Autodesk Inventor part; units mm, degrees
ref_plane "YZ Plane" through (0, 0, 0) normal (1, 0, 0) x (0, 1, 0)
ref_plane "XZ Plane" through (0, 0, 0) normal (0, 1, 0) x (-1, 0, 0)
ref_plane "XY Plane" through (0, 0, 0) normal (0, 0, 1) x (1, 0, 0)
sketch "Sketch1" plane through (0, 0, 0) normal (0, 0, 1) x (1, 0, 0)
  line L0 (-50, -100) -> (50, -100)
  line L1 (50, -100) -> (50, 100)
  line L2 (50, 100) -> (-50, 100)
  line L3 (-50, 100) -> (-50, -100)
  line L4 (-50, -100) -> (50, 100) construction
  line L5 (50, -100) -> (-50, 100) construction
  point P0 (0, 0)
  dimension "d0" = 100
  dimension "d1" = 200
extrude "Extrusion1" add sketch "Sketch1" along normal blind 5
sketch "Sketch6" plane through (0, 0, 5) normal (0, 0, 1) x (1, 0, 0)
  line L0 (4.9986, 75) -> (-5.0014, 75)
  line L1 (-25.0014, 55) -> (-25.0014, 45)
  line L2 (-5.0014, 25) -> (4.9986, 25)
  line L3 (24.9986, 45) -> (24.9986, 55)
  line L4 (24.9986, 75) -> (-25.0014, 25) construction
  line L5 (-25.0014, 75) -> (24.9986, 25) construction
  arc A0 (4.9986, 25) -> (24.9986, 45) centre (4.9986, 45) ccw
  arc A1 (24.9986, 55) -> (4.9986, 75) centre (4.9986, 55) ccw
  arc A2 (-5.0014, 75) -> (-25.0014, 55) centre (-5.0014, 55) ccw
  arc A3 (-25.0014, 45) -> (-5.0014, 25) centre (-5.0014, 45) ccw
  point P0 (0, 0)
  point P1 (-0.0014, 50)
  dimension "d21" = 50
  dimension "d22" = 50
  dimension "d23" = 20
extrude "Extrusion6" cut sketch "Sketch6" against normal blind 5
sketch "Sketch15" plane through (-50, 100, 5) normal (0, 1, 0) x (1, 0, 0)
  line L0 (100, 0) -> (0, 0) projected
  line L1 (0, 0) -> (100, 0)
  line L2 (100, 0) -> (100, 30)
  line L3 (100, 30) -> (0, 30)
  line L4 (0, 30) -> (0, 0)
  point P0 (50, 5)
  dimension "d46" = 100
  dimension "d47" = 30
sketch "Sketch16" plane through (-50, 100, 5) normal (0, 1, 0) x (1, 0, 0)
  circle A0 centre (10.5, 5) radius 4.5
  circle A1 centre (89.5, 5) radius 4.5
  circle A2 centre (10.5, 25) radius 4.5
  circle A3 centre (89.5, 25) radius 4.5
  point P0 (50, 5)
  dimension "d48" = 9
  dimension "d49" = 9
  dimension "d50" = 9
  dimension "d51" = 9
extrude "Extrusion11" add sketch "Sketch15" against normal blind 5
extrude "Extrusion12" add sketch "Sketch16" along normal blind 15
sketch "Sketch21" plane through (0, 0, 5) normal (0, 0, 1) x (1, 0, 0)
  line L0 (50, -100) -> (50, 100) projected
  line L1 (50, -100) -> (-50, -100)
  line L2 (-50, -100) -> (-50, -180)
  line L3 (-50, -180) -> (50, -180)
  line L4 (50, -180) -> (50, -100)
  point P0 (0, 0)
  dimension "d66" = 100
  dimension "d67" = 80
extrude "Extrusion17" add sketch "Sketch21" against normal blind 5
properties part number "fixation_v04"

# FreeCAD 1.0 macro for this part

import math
import FreeCAD as App
import Part
import Sketcher
Q = App.Units.Quantity

doc = App.newDocument("Part")
body = doc.addObject("PartDesign::Body", "Body")

sketch1 = body.newObject("Sketcher::SketchObject", "Sketch")
sketch1.AttachmentSupport = (doc.getObject("XY_Plane"), [""])
sketch1.MapMode = "FlatFace"
sketch1.addGeometry([
    Part.LineSegment(App.Vector(-50, 100, 0), App.Vector(-50, -100, 0)),
    Part.LineSegment(App.Vector(-50, -100, 0), App.Vector(50, -100, 0)),
    Part.LineSegment(App.Vector(50, -100, 0), App.Vector(50, 100, 0)),
    Part.LineSegment(App.Vector(50, 100, 0), App.Vector(-50, 100, 0)),
], False)
sketch1.addConstraint([
    Sketcher.Constraint("Coincident", 0, 2, 1, 1),
    Sketcher.Constraint("Coincident", 1, 2, 2, 1),
    Sketcher.Constraint("Coincident", 2, 2, 3, 1),
    Sketcher.Constraint("Coincident", 3, 2, 0, 1),
    Sketcher.Constraint("Vertical", 0),
    Sketcher.Constraint("Horizontal", 1),
    Sketcher.Constraint("Vertical", 2),
    Sketcher.Constraint("Horizontal", 3),
    Sketcher.Constraint("Symmetric", 0, 2, 2, 2, -1, 1),
    Sketcher.Constraint("DistanceX", 1, 1, 1, 2, Q("100 mm")),
    Sketcher.Constraint("DistanceY", 0, 2, 0, 1, Q("200 mm")),
])
pad1 = body.newObject("PartDesign::Pad", "Pad")
pad1.Profile = sketch1
pad1.Length = 5

sketch2 = body.newObject("Sketcher::SketchObject", "Sketch001")
sketch2.AttachmentSupport = (doc.getObject("XY_Plane"), [""])
sketch2.MapMode = "FlatFace"
sketch2.AttachmentOffset = App.Placement(App.Vector(0, 0, 5), App.Rotation())
sketch2.addGeometry([
    Part.ArcOfCircle(Part.Circle(App.Vector(5, 55, 0), App.Vector(0, 0, 1), 20), math.radians(0), math.radians(90)),
    Part.LineSegment(App.Vector(5, 75, 0), App.Vector(-5, 75, 0)),
    Part.ArcOfCircle(Part.Circle(App.Vector(-5, 55, 0), App.Vector(0, 0, 1), 20), math.radians(90), math.radians(180)),
    Part.LineSegment(App.Vector(-25, 55, 0), App.Vector(-25, 45, 0)),
    Part.ArcOfCircle(Part.Circle(App.Vector(-5, 45, 0), App.Vector(0, 0, 1), 20), math.radians(180), math.radians(270)),
    Part.LineSegment(App.Vector(-5, 25, 0), App.Vector(5, 25, 0)),
    Part.ArcOfCircle(Part.Circle(App.Vector(5, 45, 0), App.Vector(0, 0, 1), 20), math.radians(-90), math.radians(0)),
    Part.LineSegment(App.Vector(25, 45, 0), App.Vector(25, 55, 0)),
], False)
sketch2.addConstraint([
    Sketcher.Constraint("Tangent", 0, 2, 1, 1),
    Sketcher.Constraint("Tangent", 1, 2, 2, 1),
    Sketcher.Constraint("Tangent", 2, 2, 3, 1),
    Sketcher.Constraint("Tangent", 3, 2, 4, 1),
    Sketcher.Constraint("Tangent", 4, 2, 5, 1),
    Sketcher.Constraint("Tangent", 5, 2, 6, 1),
    Sketcher.Constraint("Tangent", 6, 2, 7, 1),
    Sketcher.Constraint("Tangent", 7, 2, 0, 1),
    Sketcher.Constraint("Horizontal", 1),
    Sketcher.Constraint("Vertical", 3),
    Sketcher.Constraint("Horizontal", 5),
    Sketcher.Constraint("Vertical", 7),
    Sketcher.Constraint("Equal", 0, 2),
    Sketcher.Constraint("Equal", 2, 4),
    Sketcher.Constraint("Equal", 4, 6),
    Sketcher.Constraint("Equal", 5, 3),
    Sketcher.Constraint("Radius", 0, Q("20 mm")),
    Sketcher.Constraint("DistanceX", 1, 2, 1, 1, Q("10 mm")),
    Sketcher.Constraint("DistanceY", -1, 1, 0, 3, Q("55 mm")),
    Sketcher.Constraint("DistanceX", -1, 1, 0, 3, Q("4.9986 mm")),
])
pocket1 = body.newObject("PartDesign::Pocket", "Pocket")
pocket1.Profile = sketch2
pocket1.Length = 5

sketch3 = body.newObject("Sketcher::SketchObject", "Sketch002")
sketch3.AttachmentSupport = (doc.getObject("XZ_Plane"), [""])
sketch3.MapMode = "FlatFace"
sketch3.AttachmentOffset = App.Placement(App.Vector(0, 0, -100), App.Rotation())
sketch3.addGeometry([
    Part.LineSegment(App.Vector(-50, 5, 0), App.Vector(50, 5, 0)),
    Part.LineSegment(App.Vector(50, 5, 0), App.Vector(50, -25, 0)),
    Part.LineSegment(App.Vector(50, -25, 0), App.Vector(-50, -25, 0)),
    Part.LineSegment(App.Vector(-50, -25, 0), App.Vector(-50, 5, 0)),
], False)
sketch3.addConstraint([
    Sketcher.Constraint("Coincident", 0, 2, 1, 1),
    Sketcher.Constraint("Coincident", 1, 2, 2, 1),
    Sketcher.Constraint("Coincident", 2, 2, 3, 1),
    Sketcher.Constraint("Coincident", 3, 2, 0, 1),
    Sketcher.Constraint("Horizontal", 0),
    Sketcher.Constraint("Vertical", 1),
    Sketcher.Constraint("Horizontal", 2),
    Sketcher.Constraint("Vertical", 3),
    Sketcher.Constraint("DistanceX", 0, 1, 0, 2, Q("100 mm")),
    Sketcher.Constraint("DistanceY", 1, 2, 1, 1, Q("30 mm")),
    Sketcher.Constraint("DistanceX", -1, 1, 0, 2, Q("50 mm")),
    Sketcher.Constraint("DistanceY", -1, 1, 0, 2, Q("5 mm")),
])
pad2 = body.newObject("PartDesign::Pad", "Pad001")
pad2.Profile = sketch3
pad2.Length = 5

sketch4 = body.newObject("Sketcher::SketchObject", "Sketch003")
sketch4.AttachmentSupport = (doc.getObject("XZ_Plane"), [""])
sketch4.MapMode = "FlatFace"
sketch4.AttachmentOffset = App.Placement(App.Vector(0, 0, -100), App.Rotation())
sketch4.addGeometry([
    Part.Circle(App.Vector(-39.5, 0, 0), App.Vector(0, 0, 1), 4.5),
    Part.Circle(App.Vector(39.5, 0, 0), App.Vector(0, 0, 1), 4.5),
    Part.Circle(App.Vector(-39.5, -20, 0), App.Vector(0, 0, 1), 4.5),
    Part.Circle(App.Vector(39.5, -20, 0), App.Vector(0, 0, 1), 4.5),
], False)
sketch4.addConstraint([
    Sketcher.Constraint("Equal", 0, 1),
    Sketcher.Constraint("Equal", 1, 2),
    Sketcher.Constraint("Equal", 2, 3),
    Sketcher.Constraint("Symmetric", 0, 3, 1, 3, -1, 1),
    Sketcher.Constraint("Symmetric", 2, 3, 3, 3, -2),
    Sketcher.Constraint("PointOnObject", 0, 3, -1),
    Sketcher.Constraint("Vertical", 0, 3, 2, 3),
    Sketcher.Constraint("Diameter", 0, Q("9 mm")),
    Sketcher.Constraint("DistanceY", 2, 3, -1, 1, Q("20 mm")),
    Sketcher.Constraint("DistanceX", 0, 3, 1, 3, Q("79 mm")),
])
pad3 = body.newObject("PartDesign::Pad", "Pad002")
pad3.Profile = sketch4
pad3.Length = 15
pad3.Reversed = True

sketch5 = body.newObject("Sketcher::SketchObject", "Sketch004")
sketch5.AttachmentSupport = (doc.getObject("XY_Plane"), [""])
sketch5.MapMode = "FlatFace"
sketch5.AttachmentOffset = App.Placement(App.Vector(0, 0, 5), App.Rotation())
sketch5.addGeometry([
    Part.LineSegment(App.Vector(50, -180, 0), App.Vector(50, -100, 0)),
    Part.LineSegment(App.Vector(50, -100, 0), App.Vector(-50, -100, 0)),
    Part.LineSegment(App.Vector(-50, -100, 0), App.Vector(-50, -180, 0)),
    Part.LineSegment(App.Vector(-50, -180, 0), App.Vector(50, -180, 0)),
], False)
sketch5.addConstraint([
    Sketcher.Constraint("Coincident", 0, 2, 1, 1),
    Sketcher.Constraint("Coincident", 1, 2, 2, 1),
    Sketcher.Constraint("Coincident", 2, 2, 3, 1),
    Sketcher.Constraint("Coincident", 3, 2, 0, 1),
    Sketcher.Constraint("Vertical", 0),
    Sketcher.Constraint("Horizontal", 1),
    Sketcher.Constraint("Vertical", 2),
    Sketcher.Constraint("Horizontal", 3),
    Sketcher.Constraint("DistanceX", 1, 2, 1, 1, Q("100 mm")),
    Sketcher.Constraint("DistanceY", 0, 1, 0, 2, Q("80 mm")),
    Sketcher.Constraint("DistanceY", 0, 2, -1, 1, Q("100 mm")),
    Sketcher.Constraint("DistanceX", -1, 1, 0, 2, Q("50 mm")),
])
pad4 = body.newObject("PartDesign::Pad", "Pad003")
pad4.Profile = sketch5
pad4.Length = 5
pad4.Reversed = True

doc.recompute()
